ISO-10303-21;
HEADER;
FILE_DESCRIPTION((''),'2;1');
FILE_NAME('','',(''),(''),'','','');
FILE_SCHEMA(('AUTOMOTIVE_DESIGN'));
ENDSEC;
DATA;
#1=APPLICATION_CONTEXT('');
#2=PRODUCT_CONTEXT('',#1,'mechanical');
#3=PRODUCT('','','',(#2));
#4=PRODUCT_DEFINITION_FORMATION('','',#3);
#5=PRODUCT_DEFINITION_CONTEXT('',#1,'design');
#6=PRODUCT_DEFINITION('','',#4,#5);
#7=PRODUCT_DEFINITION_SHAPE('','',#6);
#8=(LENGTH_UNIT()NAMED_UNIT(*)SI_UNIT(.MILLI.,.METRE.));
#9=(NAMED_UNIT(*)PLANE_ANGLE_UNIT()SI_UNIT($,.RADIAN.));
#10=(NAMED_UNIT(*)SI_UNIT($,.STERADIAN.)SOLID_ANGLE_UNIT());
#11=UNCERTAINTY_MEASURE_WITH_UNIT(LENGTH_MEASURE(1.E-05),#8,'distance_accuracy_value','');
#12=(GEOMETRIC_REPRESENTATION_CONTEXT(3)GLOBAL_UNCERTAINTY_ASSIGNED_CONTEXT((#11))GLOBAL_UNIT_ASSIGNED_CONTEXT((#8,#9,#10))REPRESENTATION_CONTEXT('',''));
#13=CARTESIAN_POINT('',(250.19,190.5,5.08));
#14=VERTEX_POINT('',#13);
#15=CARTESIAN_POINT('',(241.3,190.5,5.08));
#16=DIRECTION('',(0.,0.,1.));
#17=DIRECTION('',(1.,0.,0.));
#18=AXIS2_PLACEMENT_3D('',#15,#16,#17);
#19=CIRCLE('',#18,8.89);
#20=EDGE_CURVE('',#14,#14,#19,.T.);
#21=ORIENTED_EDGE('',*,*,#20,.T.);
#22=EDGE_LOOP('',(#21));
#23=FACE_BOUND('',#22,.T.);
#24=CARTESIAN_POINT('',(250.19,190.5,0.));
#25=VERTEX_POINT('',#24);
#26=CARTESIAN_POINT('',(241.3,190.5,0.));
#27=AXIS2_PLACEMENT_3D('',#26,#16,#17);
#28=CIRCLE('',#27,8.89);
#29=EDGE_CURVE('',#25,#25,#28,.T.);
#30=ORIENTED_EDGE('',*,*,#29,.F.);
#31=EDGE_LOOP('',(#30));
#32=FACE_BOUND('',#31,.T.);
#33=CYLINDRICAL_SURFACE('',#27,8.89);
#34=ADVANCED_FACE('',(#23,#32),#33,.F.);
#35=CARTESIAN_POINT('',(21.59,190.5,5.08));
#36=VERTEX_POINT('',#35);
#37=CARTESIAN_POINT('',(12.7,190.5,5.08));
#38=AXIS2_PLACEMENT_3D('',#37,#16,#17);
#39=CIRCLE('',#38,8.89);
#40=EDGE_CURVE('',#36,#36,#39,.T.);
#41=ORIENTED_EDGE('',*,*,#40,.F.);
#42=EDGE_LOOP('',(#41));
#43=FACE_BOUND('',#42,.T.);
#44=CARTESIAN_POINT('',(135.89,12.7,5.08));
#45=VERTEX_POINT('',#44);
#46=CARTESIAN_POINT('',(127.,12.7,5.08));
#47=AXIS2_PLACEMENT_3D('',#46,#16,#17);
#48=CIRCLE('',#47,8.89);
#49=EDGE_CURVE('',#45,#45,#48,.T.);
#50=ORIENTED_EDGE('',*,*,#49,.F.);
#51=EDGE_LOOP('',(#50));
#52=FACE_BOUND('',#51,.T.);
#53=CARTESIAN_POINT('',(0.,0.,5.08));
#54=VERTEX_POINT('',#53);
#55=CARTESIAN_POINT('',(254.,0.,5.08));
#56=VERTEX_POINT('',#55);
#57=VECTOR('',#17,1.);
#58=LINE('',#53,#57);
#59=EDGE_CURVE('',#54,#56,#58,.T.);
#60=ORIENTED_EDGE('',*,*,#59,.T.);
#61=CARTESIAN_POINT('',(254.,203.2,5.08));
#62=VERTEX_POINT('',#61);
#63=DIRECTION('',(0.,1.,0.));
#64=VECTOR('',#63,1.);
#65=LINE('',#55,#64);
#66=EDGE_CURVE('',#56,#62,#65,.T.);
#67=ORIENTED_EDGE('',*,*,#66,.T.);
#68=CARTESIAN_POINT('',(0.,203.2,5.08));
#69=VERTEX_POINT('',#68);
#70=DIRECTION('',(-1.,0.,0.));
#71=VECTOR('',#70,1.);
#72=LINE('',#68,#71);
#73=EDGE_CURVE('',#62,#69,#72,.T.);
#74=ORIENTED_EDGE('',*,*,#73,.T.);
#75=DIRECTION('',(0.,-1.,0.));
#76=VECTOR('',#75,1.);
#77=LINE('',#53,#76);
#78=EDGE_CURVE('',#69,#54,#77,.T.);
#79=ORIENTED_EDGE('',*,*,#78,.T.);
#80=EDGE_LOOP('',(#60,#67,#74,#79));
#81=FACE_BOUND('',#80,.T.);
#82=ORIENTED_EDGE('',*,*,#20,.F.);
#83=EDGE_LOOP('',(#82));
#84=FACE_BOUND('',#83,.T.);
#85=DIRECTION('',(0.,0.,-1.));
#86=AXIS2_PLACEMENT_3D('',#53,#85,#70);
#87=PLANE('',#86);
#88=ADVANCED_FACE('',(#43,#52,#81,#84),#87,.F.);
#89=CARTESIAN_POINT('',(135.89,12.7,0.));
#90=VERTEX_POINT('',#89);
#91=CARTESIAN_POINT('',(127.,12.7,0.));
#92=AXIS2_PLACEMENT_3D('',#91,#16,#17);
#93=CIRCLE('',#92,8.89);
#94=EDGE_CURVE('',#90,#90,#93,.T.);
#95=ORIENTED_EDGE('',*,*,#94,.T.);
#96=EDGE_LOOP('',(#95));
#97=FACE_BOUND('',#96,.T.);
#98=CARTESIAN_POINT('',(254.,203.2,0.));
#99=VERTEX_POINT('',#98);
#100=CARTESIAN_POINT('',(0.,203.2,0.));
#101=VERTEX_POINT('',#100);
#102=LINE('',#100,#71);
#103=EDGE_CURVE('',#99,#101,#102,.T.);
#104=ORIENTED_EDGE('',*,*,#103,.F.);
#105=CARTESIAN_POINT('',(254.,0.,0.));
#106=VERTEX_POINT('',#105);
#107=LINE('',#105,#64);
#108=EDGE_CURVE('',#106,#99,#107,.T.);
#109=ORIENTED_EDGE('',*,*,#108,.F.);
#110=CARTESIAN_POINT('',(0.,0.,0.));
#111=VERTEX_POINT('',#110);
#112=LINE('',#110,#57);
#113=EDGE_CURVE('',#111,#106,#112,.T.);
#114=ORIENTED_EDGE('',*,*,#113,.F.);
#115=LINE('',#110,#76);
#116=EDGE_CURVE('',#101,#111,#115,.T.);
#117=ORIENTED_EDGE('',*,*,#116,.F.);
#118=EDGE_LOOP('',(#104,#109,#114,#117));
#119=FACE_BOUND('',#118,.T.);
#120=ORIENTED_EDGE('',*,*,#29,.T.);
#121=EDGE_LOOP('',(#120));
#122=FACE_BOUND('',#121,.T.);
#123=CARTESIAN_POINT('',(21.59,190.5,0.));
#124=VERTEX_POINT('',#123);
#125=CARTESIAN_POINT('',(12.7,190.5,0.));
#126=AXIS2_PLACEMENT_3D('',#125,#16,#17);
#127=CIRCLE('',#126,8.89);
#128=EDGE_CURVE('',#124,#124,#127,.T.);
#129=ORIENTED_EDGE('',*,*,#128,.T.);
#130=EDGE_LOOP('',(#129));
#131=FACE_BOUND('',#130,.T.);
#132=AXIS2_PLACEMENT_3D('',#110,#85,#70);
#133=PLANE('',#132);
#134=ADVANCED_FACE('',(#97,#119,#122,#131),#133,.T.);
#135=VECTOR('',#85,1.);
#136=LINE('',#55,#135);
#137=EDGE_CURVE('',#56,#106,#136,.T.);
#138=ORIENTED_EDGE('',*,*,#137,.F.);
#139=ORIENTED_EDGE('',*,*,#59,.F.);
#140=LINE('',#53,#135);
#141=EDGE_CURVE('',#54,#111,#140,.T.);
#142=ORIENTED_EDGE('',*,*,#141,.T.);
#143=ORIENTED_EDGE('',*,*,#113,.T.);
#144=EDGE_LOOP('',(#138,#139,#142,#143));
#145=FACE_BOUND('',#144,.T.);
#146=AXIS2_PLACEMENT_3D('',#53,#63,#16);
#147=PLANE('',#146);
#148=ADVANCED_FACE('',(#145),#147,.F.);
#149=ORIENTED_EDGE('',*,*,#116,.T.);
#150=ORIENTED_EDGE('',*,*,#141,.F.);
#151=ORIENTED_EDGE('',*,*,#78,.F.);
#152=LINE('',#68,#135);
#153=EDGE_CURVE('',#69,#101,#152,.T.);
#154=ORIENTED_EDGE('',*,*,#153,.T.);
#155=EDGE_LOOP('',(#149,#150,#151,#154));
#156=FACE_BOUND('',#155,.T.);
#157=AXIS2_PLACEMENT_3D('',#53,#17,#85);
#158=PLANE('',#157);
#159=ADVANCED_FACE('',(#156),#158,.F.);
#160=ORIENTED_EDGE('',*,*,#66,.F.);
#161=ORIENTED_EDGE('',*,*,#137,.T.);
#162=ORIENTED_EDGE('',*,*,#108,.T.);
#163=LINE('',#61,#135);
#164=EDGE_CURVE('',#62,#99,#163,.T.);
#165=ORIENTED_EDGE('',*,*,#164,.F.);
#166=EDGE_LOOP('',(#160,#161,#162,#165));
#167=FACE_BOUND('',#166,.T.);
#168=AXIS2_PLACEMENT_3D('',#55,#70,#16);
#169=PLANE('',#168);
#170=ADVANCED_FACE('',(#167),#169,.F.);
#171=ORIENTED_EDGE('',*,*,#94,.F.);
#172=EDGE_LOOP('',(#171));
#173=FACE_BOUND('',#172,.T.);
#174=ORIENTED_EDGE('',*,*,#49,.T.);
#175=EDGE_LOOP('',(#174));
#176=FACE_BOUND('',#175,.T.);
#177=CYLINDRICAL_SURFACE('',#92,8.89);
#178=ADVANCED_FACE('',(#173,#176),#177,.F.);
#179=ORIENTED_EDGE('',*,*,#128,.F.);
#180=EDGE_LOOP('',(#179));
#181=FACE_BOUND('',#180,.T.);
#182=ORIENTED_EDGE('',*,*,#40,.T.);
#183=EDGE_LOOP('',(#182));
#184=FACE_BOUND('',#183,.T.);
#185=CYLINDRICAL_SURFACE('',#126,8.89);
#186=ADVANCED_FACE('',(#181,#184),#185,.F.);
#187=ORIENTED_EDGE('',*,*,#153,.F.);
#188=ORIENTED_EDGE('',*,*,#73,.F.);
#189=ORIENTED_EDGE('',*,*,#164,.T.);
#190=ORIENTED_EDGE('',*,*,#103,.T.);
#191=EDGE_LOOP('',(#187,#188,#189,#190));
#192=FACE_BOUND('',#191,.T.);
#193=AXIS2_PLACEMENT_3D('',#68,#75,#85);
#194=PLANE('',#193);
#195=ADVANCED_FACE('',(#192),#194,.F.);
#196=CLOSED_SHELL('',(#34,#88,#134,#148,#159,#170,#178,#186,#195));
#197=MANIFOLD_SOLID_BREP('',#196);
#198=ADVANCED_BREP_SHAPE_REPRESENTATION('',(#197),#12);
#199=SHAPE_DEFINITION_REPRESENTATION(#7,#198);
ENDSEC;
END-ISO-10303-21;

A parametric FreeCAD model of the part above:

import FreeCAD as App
import Part
import Sketcher
Q = App.Units.Quantity

doc = App.newDocument("Part")
body = doc.addObject("PartDesign::Body", "Body")

sketch1 = body.newObject("Sketcher::SketchObject", "Sketch")
sketch1.AttachmentSupport = (doc.getObject("XY_Plane"), [""])
sketch1.MapMode = "FlatFace"
sketch1.addGeometry([
    Part.LineSegment(App.Vector(0, 203, 0), App.Vector(0, 0, 0)),
    Part.LineSegment(App.Vector(0, 0, 0), App.Vector(254, 0, 0)),
    Part.LineSegment(App.Vector(254, 0, 0), App.Vector(254, 203, 0)),
    Part.LineSegment(App.Vector(254, 203, 0), App.Vector(0, 203, 0)),
], False)
sketch1.addConstraint([
    Sketcher.Constraint("Coincident", 0, 2, 1, 1),
    Sketcher.Constraint("Coincident", 1, 2, 2, 1),
    Sketcher.Constraint("Coincident", 2, 2, 3, 1),
    Sketcher.Constraint("Coincident", 3, 2, 0, 1),
    Sketcher.Constraint("Vertical", 0),
    Sketcher.Constraint("Horizontal", 1),
    Sketcher.Constraint("Vertical", 2),
    Sketcher.Constraint("Horizontal", 3),
    Sketcher.Constraint("Coincident", 0, 2, -1, 1),
    Sketcher.Constraint("DistanceX", 1, 1, 1, 2, Q("10 in")),
    Sketcher.Constraint("DistanceY", 0, 2, 0, 1, Q("8 in")),
])
pad1 = body.newObject("PartDesign::Pad", "Pad")
pad1.Profile = sketch1
pad1.Length = Q("0.2 in")

sketch2 = body.newObject("Sketcher::SketchObject", "Sketch001")
sketch2.AttachmentSupport = (doc.getObject("XY_Plane"), [""])
sketch2.MapMode = "FlatFace"
sketch2.AttachmentOffset = App.Placement(App.Vector(0, 0, 0.2 * 25.4), App.Rotation())
sketch2.addGeometry([
    Part.Circle(App.Vector(13, 190, 0), App.Vector(0, 0, 1), 9),
    Part.Circle(App.Vector(241, 190, 0), App.Vector(0, 0, 1), 9),
    Part.Circle(App.Vector(127, 13, 0), App.Vector(0, 0, 1), 9),
], False)
sketch2.addConstraint([
    Sketcher.Constraint("Equal", 0, 1),
    Sketcher.Constraint("Equal", 1, 2),
    Sketcher.Constraint("Horizontal", 0, 3, 1, 3),
    Sketcher.Constraint("Diameter", 0, Q("0.7 in")),
    Sketcher.Constraint("DistanceX", -1, 1, 2, 3, Q("5 in")),
    Sketcher.Constraint("DistanceX", 0, 3, 1, 3, Q("9 in")),
    Sketcher.Constraint("DistanceY", 2, 3, 0, 3, Q("7 in")),
    Sketcher.Constraint("DistanceX", -1, 1, 0, 3, Q("0.5 in")),
    Sketcher.Constraint("DistanceY", -1, 1, 0, 3, Q("7.5 in")),
])
pocket1 = body.newObject("PartDesign::Pocket", "Pocket")
pocket1.Profile = sketch2
pocket1.Type = "ThroughAll"

doc.recompute()
